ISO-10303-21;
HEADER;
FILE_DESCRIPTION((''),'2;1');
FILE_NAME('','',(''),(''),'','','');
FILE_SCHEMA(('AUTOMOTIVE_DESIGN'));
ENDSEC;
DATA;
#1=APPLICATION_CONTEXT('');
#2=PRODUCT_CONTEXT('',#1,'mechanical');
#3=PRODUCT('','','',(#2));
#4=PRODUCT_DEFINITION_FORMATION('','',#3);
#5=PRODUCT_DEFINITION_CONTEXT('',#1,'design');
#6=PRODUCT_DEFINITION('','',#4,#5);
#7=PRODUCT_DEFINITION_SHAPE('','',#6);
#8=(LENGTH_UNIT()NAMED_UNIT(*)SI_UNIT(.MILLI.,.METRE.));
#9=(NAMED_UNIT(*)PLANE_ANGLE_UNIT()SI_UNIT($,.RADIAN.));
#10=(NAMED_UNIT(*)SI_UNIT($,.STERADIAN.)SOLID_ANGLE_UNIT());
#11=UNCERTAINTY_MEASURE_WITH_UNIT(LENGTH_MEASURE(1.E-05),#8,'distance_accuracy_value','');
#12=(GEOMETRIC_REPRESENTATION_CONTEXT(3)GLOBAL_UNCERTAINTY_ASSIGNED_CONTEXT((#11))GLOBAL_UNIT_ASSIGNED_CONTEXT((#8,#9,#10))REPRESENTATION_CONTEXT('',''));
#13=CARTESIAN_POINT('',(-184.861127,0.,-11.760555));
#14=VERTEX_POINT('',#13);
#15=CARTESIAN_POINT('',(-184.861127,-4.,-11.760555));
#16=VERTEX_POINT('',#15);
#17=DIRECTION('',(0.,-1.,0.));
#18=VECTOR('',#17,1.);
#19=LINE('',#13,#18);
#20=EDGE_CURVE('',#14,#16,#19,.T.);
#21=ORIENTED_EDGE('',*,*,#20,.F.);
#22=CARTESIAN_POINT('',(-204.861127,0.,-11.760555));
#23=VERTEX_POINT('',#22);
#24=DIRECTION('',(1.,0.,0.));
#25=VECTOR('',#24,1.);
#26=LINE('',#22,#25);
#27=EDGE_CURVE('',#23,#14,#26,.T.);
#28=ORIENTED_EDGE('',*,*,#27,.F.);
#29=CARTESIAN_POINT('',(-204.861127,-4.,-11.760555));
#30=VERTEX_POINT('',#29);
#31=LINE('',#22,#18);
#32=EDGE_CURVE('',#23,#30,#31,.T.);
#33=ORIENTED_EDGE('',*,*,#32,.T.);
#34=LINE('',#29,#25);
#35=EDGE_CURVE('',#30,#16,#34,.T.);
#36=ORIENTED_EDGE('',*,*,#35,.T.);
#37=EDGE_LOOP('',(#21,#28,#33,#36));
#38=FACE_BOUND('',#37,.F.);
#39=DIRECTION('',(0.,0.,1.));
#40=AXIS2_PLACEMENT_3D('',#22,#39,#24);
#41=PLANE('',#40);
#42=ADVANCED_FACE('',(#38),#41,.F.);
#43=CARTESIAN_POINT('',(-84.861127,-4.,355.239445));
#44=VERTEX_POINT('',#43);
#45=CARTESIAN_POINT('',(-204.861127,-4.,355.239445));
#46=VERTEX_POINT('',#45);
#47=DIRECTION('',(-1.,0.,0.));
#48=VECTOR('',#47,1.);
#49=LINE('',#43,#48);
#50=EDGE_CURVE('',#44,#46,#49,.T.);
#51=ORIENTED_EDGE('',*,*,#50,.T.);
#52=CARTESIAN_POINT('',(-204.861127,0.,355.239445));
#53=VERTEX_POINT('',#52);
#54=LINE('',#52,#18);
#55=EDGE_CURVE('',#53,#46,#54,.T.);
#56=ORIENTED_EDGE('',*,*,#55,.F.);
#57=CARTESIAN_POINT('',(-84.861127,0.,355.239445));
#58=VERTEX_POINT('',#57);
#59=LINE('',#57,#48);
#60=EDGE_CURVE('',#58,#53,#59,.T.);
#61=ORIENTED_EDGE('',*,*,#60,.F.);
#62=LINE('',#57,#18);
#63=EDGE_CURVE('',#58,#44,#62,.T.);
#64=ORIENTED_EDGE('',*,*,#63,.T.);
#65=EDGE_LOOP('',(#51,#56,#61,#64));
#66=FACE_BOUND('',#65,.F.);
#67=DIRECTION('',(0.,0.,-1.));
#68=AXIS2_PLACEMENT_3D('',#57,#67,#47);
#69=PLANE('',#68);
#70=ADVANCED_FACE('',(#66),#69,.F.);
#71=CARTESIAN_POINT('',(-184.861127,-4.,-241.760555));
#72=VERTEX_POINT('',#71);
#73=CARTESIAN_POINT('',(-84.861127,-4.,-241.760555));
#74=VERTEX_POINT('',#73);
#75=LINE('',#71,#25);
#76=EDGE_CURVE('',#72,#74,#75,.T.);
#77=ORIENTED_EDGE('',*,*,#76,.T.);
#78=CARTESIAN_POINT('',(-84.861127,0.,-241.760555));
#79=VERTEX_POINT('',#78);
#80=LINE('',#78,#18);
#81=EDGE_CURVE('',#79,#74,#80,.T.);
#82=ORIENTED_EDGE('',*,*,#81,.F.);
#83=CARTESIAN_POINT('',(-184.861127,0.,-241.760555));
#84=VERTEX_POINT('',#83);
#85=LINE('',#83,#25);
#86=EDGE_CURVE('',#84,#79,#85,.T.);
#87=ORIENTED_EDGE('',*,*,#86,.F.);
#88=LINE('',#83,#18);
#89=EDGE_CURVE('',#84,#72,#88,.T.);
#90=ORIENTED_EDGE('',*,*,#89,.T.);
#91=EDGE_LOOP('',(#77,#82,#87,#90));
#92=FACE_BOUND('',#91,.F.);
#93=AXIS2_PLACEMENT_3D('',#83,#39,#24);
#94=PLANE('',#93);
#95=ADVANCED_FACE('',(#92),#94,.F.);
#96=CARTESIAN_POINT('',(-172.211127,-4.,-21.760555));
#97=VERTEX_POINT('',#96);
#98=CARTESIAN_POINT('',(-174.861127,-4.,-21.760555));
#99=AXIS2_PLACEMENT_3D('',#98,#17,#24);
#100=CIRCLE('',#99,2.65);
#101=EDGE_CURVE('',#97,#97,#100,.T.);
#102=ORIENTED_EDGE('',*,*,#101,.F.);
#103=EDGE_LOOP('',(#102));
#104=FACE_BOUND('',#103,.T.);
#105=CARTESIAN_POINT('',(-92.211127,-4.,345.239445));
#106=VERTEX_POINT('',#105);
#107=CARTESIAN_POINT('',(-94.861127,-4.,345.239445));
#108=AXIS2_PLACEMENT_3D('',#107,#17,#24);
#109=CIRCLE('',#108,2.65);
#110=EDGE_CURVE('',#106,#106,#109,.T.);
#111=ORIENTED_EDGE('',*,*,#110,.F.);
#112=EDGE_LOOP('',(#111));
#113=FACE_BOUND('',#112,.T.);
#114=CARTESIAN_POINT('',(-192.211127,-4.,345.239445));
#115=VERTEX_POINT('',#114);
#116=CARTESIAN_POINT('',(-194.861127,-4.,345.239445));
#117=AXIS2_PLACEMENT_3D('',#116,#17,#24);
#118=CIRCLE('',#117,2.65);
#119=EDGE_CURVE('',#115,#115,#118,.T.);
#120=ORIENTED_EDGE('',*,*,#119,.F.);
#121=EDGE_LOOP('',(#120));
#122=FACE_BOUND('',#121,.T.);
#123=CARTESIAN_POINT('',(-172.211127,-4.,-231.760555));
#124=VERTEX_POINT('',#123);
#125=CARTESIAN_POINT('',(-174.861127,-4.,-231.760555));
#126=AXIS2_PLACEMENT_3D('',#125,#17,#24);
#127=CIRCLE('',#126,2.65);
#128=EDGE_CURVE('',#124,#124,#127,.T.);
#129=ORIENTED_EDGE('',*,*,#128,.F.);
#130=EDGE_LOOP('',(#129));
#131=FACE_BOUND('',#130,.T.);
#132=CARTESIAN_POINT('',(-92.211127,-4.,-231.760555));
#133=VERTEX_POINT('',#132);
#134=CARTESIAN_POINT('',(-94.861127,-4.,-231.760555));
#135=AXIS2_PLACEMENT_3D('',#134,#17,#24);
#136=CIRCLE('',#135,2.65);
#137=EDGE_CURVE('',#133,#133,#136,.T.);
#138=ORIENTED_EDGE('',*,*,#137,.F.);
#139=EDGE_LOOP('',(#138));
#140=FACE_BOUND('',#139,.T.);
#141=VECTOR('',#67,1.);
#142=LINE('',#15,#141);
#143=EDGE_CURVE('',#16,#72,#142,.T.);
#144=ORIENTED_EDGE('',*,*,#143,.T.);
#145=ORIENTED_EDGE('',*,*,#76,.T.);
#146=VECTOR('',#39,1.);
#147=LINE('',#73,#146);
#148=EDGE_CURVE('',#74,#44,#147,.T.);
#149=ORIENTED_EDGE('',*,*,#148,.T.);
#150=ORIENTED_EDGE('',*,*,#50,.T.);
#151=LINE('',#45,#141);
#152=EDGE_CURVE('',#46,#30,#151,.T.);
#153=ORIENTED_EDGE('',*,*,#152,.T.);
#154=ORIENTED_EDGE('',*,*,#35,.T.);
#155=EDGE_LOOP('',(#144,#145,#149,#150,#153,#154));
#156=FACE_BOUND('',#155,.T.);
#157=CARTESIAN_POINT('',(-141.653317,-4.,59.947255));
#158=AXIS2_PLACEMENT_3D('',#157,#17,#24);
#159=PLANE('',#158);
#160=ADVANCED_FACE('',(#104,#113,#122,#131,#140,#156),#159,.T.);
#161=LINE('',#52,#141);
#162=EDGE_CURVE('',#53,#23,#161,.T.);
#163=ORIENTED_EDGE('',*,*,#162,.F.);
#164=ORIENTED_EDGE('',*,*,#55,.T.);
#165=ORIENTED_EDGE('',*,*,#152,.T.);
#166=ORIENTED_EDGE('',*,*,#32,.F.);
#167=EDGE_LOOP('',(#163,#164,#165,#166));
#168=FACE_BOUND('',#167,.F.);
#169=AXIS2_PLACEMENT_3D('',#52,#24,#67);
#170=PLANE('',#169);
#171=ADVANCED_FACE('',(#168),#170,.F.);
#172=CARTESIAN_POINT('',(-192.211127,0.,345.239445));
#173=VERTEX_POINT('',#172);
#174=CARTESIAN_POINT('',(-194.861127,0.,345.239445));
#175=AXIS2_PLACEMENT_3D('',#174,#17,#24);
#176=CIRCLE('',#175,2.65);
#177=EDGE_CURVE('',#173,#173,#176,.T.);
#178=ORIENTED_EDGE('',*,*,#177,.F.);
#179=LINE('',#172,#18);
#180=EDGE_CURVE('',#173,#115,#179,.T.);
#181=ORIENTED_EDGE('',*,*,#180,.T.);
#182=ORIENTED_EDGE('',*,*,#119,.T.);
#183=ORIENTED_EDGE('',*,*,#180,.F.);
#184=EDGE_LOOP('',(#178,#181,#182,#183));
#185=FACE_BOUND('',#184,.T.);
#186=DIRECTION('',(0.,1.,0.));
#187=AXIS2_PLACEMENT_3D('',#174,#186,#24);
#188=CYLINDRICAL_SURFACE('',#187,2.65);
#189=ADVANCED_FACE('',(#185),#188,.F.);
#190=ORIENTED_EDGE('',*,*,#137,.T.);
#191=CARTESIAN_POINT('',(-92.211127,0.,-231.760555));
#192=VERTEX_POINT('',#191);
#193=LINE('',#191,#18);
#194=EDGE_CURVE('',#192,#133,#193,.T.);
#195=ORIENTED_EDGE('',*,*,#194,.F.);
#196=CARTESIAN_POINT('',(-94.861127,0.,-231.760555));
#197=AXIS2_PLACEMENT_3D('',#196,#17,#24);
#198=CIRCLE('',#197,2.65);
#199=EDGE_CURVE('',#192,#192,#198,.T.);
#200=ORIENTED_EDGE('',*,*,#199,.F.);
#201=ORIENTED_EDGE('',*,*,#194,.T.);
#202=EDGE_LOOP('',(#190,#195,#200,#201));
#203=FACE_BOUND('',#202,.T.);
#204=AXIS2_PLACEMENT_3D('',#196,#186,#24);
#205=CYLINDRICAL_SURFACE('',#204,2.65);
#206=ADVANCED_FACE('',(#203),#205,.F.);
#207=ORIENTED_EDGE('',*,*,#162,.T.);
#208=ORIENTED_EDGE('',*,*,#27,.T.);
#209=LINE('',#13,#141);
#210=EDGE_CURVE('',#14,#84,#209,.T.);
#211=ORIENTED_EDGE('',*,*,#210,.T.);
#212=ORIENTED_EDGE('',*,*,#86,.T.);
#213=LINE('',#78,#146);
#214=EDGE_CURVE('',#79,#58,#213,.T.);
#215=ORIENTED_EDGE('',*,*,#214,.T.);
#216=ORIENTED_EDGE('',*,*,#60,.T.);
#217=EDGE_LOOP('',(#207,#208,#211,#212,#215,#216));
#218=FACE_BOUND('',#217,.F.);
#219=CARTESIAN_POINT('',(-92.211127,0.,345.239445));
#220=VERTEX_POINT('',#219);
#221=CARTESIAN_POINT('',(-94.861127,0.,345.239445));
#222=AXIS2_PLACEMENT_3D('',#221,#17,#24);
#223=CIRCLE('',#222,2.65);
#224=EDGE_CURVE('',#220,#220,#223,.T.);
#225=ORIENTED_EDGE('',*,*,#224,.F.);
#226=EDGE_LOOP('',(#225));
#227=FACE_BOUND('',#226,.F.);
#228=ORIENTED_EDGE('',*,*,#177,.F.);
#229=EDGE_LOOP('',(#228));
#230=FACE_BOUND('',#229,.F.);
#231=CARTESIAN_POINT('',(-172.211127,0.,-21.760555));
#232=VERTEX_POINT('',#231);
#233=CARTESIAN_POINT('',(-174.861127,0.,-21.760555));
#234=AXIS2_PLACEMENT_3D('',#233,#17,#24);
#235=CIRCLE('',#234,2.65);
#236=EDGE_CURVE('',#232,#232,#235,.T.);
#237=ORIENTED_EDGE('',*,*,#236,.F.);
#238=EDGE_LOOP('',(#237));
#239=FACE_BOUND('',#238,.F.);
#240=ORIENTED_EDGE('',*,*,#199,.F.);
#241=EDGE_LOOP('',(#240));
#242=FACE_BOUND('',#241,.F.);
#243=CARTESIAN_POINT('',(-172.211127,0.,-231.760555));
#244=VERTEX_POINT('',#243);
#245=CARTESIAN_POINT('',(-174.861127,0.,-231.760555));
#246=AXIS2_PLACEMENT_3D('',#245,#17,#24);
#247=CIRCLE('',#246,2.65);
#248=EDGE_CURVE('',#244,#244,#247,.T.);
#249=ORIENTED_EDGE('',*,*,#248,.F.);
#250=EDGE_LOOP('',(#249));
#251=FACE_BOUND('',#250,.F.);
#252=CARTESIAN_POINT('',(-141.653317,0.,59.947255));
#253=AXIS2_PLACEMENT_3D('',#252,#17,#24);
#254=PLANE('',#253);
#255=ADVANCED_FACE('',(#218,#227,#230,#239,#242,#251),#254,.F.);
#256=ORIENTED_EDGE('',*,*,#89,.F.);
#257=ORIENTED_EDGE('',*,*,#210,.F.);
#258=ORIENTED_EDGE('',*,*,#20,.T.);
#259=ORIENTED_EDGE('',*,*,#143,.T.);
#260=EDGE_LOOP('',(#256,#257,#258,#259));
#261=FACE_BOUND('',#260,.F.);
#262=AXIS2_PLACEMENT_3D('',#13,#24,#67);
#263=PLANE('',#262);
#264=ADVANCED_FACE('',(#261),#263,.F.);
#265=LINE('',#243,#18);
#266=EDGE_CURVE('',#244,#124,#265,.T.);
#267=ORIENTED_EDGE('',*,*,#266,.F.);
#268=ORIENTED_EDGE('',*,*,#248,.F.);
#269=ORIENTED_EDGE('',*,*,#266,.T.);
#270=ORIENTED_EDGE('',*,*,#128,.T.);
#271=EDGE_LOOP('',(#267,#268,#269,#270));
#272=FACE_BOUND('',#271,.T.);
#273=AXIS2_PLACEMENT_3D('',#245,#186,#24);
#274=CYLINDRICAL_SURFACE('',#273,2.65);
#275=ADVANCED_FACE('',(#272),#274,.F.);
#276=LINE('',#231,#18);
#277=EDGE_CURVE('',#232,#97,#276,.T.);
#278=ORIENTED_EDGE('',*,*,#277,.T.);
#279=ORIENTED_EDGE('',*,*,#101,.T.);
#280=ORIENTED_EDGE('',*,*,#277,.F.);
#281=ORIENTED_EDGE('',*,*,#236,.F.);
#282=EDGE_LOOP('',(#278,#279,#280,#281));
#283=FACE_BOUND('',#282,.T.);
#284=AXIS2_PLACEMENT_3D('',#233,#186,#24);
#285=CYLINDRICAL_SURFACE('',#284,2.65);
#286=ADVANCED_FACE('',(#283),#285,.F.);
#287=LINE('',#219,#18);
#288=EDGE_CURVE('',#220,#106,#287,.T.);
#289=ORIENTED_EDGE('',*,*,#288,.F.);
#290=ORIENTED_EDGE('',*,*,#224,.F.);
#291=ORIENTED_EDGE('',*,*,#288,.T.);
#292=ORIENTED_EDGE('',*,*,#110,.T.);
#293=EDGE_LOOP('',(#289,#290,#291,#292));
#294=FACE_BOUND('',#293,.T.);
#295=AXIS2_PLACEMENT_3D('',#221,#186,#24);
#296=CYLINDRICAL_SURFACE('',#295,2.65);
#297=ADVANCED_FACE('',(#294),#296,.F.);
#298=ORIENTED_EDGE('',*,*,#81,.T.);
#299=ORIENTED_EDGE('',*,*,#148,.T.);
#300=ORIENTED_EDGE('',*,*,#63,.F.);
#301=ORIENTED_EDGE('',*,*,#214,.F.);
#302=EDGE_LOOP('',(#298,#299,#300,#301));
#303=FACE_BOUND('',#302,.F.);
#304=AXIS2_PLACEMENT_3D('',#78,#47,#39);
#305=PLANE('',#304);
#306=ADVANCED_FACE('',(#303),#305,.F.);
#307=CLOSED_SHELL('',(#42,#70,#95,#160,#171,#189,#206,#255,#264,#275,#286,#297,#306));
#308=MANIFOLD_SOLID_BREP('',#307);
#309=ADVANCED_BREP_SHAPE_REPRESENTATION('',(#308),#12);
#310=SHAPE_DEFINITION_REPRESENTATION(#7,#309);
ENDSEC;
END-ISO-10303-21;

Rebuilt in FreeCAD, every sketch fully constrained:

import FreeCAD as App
import Part
import Sketcher

V = App.Vector


def add_polygon(sketch, points):
    """Adds a closed chain of lines whose ends are joined by coincident constraints."""
    first, n = sketch.GeometryCount, len(points)
    for a, b in zip(points, points[1:] + points[:1]):
        sketch.addGeometry(Part.LineSegment(App.Vector(*a, 0), App.Vector(*b, 0)), False)
    for i in range(n):
        sketch.addConstraint(Sketcher.Constraint("Coincident", first + i, 2, first + (i + 1) % n, 1))

doc = App.newDocument("Part")
params = doc.addObject("Spreadsheet::Sheet", "Params")
for row, (alias, value) in enumerate([
    ("sketch1_diameter", "5.3 mm"),
    ("sketch1_width", "20 mm"),
    ("sketch1_width2", "100 mm"),
    ("sketch1_height", "230 mm"),
    ("sketch1_height2", "597 mm"),
    ("pad1_length", "4 mm"),
], start=1):
    params.set(f"A{row}", alias)
    params.set(f"B{row}", "=" + value)
    params.setAlias(f"B{row}", alias)

body = doc.addObject("PartDesign::Body", "Body")

# Sketch on XZ plane
sketch1 = body.newObject("Sketcher::SketchObject", "Sketch")
sketch1.AttachmentSupport = (doc.getObject("XZ_Plane"), [""])
sketch1.MapMode = "FlatFace"
add_polygon(sketch1, [(-204.861127, -11.760555), (-184.861127, -11.760555), (-184.861127, -241.760555), (-84.861127, -241.760555), (-84.861127, 355.239445), (-204.861127, 355.239445)])  # lines 0-5
sketch1.addGeometry(Part.Circle(V(-174.861127, -231.760555, 0), V(0, 0, 1), 2.65), False)  # 6
sketch1.addGeometry(Part.Circle(V(-174.861127, -21.760555, 0), V(0, 0, 1), 2.65), False)  # 7
sketch1.addGeometry(Part.Circle(V(-94.861127, -231.760555, 0), V(0, 0, 1), 2.65), False)  # 8
sketch1.addGeometry(Part.Circle(V(-194.861127, 345.239445, 0), V(0, 0, 1), 2.65), False)  # 9
sketch1.addGeometry(Part.Circle(V(-94.861127, 345.239445, 0), V(0, 0, 1), 2.65), False)  # 10
sketch1.addConstraint([
    Sketcher.Constraint("Horizontal", 0),
    Sketcher.Constraint("Vertical", 1),
    Sketcher.Constraint("Horizontal", 2),
    Sketcher.Constraint("Vertical", 3),
    Sketcher.Constraint("Horizontal", 4),
    Sketcher.Constraint("Vertical", 5),
    Sketcher.Constraint("Equal", 6, 7),
    Sketcher.Constraint("Equal", 7, 8),
    Sketcher.Constraint("Equal", 8, 9),
    Sketcher.Constraint("Equal", 9, 10),
    Sketcher.Constraint("Horizontal", 6, 3, 8, 3),
    Sketcher.Constraint("Horizontal", 9, 3, 10, 3),
    Sketcher.Constraint("Vertical", 6, 3, 7, 3),
    Sketcher.Constraint("Vertical", 8, 3, 10, 3),
    Sketcher.Constraint("Diameter", 6, 5.3),
    Sketcher.Constraint("DistanceX", 0, 1, 0, 2, 20.0),
    Sketcher.Constraint("DistanceX", 2, 1, 2, 2, 100.0),
    Sketcher.Constraint("DistanceY", 1, 2, 1, 1, 230.0),
    Sketcher.Constraint("DistanceY", 3, 1, 3, 2, 597.0),
    Sketcher.Constraint("DistanceY", 6, 3, 7, 3, 210.0),
    Sketcher.Constraint("DistanceX", 6, 3, 8, 3, 80.0),
    Sketcher.Constraint("DistanceX", 9, 3, 7, 3, 20.0),
    Sketcher.Constraint("DistanceY", 7, 3, 9, 3, 367.0),
    Sketcher.Constraint("DistanceX", 0, 2, 7, 3, 10.0),
    Sketcher.Constraint("DistanceY", 7, 3, 0, 2, 10.0),
    Sketcher.Constraint("DistanceX", 6, 3, -1, 1, 174.861127),
    Sketcher.Constraint("DistanceY", 6, 3, -1, 1, 231.760555),
])
sketch1.setExpression("Constraints[20]", "Params.sketch1_diameter")
sketch1.setExpression("Constraints[21]", "Params.sketch1_width")
sketch1.setExpression("Constraints[22]", "Params.sketch1_width2")
sketch1.setExpression("Constraints[23]", "Params.sketch1_height")
sketch1.setExpression("Constraints[24]", "Params.sketch1_height2")
pad1 = body.newObject("PartDesign::Pad", "Pad")
pad1.Profile = sketch1
pad1.setExpression("Length", "Params.pad1_length")

doc.recompute()
